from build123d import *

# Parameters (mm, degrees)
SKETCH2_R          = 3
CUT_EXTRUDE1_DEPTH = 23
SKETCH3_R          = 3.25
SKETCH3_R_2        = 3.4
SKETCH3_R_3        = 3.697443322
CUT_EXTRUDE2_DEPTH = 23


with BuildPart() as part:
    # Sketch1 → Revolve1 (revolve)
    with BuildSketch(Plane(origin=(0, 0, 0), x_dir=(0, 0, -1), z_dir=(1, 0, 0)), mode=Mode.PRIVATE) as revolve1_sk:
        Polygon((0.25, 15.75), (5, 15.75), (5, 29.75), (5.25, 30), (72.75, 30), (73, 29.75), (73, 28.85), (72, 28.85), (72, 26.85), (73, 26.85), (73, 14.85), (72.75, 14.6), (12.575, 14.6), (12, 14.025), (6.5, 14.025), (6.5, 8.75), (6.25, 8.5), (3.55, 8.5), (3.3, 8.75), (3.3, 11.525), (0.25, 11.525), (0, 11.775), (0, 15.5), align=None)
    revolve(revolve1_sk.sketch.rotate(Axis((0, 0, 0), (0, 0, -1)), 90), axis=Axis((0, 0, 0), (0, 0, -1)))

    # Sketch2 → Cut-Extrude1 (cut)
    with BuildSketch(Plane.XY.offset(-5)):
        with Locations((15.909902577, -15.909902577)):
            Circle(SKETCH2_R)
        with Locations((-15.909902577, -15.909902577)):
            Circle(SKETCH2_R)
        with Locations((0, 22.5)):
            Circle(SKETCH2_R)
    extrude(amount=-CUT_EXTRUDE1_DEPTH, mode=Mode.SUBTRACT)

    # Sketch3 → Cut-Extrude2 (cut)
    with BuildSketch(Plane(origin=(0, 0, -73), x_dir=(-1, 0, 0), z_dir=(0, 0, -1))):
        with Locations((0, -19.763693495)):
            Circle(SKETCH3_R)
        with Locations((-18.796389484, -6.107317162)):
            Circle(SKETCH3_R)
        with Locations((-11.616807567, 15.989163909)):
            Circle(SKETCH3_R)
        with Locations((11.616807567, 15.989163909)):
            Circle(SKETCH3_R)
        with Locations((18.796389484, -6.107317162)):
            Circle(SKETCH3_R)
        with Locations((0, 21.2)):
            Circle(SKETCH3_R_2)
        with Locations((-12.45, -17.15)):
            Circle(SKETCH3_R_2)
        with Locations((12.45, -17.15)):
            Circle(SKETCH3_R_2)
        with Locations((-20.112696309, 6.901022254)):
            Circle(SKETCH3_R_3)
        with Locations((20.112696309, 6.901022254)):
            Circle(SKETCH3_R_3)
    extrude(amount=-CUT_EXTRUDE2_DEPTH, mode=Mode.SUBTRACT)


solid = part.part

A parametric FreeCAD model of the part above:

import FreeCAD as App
import Part
import Sketcher

V = App.Vector

doc = App.newDocument("Part")
body = doc.addObject("PartDesign::Body", "Body")

# Sketch on YZ plane
sketch1 = doc.addObject("Sketcher::SketchObject", "Sketch")
body.addObject(sketch1)
sketch1.AttachmentSupport = (doc.YZ_Plane, [""])
sketch1.MapMode = "FlatFace"
sketch1.addGeometry(Part.LineSegment(V(15.75, -5, 0), V(15.75, -0.25, 0)), False)
sketch1.addGeometry(Part.LineSegment(V(15.75, -0.25, 0), V(15.5, 0, 0)), False)
sketch1.addGeometry(Part.LineSegment(V(15.5, 0, 0), V(11.78, 0, 0)), False)
sketch1.addGeometry(Part.LineSegment(V(11.78, 0, 0), V(11.53, -0.25, 0)), False)
sketch1.addGeometry(Part.LineSegment(V(11.53, -0.25, 0), V(11.53, -3.3, 0)), False)
sketch1.addGeometry(Part.LineSegment(V(11.53, -3.3, 0), V(8.75, -3.3, 0)), False)
sketch1.addGeometry(Part.LineSegment(V(8.75, -3.3, 0), V(8.5, -3.55, 0)), False)
sketch1.addGeometry(Part.LineSegment(V(8.5, -3.55, 0), V(8.5, -6.25, 0)), False)
sketch1.addGeometry(Part.LineSegment(V(8.5, -6.25, 0), V(8.75, -6.5, 0)), False)
sketch1.addGeometry(Part.LineSegment(V(8.75, -6.5, 0), V(14.03, -6.5, 0)), False)
sketch1.addGeometry(Part.LineSegment(V(14.03, -6.5, 0), V(14.03, -12, 0)), False)
sketch1.addGeometry(Part.LineSegment(V(14.03, -12, 0), V(14.6, -12.57, 0)), False)
sketch1.addGeometry(Part.LineSegment(V(14.6, -12.57, 0), V(14.6, -72.75, 0)), False)
sketch1.addGeometry(Part.LineSegment(V(14.6, -72.75, 0), V(14.85, -73, 0)), False)
sketch1.addGeometry(Part.LineSegment(V(14.85, -73, 0), V(26.85, -73, 0)), False)
sketch1.addGeometry(Part.LineSegment(V(26.85, -73, 0), V(26.85, -72, 0)), False)
sketch1.addGeometry(Part.LineSegment(V(26.85, -72, 0), V(28.85, -72, 0)), False)
sketch1.addGeometry(Part.LineSegment(V(28.85, -72, 0), V(28.85, -73, 0)), False)
sketch1.addGeometry(Part.LineSegment(V(28.85, -73, 0), V(29.75, -73, 0)), False)
sketch1.addGeometry(Part.LineSegment(V(29.75, -73, 0), V(30, -72.75, 0)), False)
sketch1.addGeometry(Part.LineSegment(V(30, -72.75, 0), V(30, -5.25, 0)), False)
sketch1.addGeometry(Part.LineSegment(V(30, -5.25, 0), V(29.75, -5, 0)), False)
sketch1.addGeometry(Part.LineSegment(V(29.75, -5, 0), V(15.75, -5, 0)), False)
sketch1.addConstraint(Sketcher.Constraint("Coincident", 0, 2, 1, 1))
sketch1.addConstraint(Sketcher.Constraint("Coincident", 1, 2, 2, 1))
sketch1.addConstraint(Sketcher.Constraint("Coincident", 2, 2, 3, 1))
sketch1.addConstraint(Sketcher.Constraint("Coincident", 3, 2, 4, 1))
sketch1.addConstraint(Sketcher.Constraint("Coincident", 4, 2, 5, 1))
sketch1.addConstraint(Sketcher.Constraint("Coincident", 5, 2, 6, 1))
sketch1.addConstraint(Sketcher.Constraint("Coincident", 6, 2, 7, 1))
sketch1.addConstraint(Sketcher.Constraint("Coincident", 7, 2, 8, 1))
sketch1.addConstraint(Sketcher.Constraint("Coincident", 8, 2, 9, 1))
sketch1.addConstraint(Sketcher.Constraint("Coincident", 9, 2, 10, 1))
sketch1.addConstraint(Sketcher.Constraint("Coincident", 10, 2, 11, 1))
sketch1.addConstraint(Sketcher.Constraint("Coincident", 11, 2, 12, 1))
sketch1.addConstraint(Sketcher.Constraint("Coincident", 12, 2, 13, 1))
sketch1.addConstraint(Sketcher.Constraint("Coincident", 13, 2, 14, 1))
sketch1.addConstraint(Sketcher.Constraint("Coincident", 14, 2, 15, 1))
sketch1.addConstraint(Sketcher.Constraint("Coincident", 15, 2, 16, 1))
sketch1.addConstraint(Sketcher.Constraint("Coincident", 16, 2, 17, 1))
sketch1.addConstraint(Sketcher.Constraint("Coincident", 17, 2, 18, 1))
sketch1.addConstraint(Sketcher.Constraint("Coincident", 18, 2, 19, 1))
sketch1.addConstraint(Sketcher.Constraint("Coincident", 19, 2, 20, 1))
sketch1.addConstraint(Sketcher.Constraint("Coincident", 20, 2, 21, 1))
sketch1.addConstraint(Sketcher.Constraint("Coincident", 21, 2, 22, 1))
sketch1.addConstraint(Sketcher.Constraint("Coincident", 22, 2, 0, 1))
sketch1.addConstraint(Sketcher.Constraint("Vertical", 0))
sketch1.addConstraint(Sketcher.Constraint("Horizontal", 2))
sketch1.addConstraint(Sketcher.Constraint("Vertical", 4))
sketch1.addConstraint(Sketcher.Constraint("Horizontal", 5))
sketch1.addConstraint(Sketcher.Constraint("Vertical", 7))
sketch1.addConstraint(Sketcher.Constraint("Horizontal", 9))
sketch1.addConstraint(Sketcher.Constraint("Vertical", 10))
sketch1.addConstraint(Sketcher.Constraint("Vertical", 12))
sketch1.addConstraint(Sketcher.Constraint("Horizontal", 14))
sketch1.addConstraint(Sketcher.Constraint("Vertical", 15))
sketch1.addConstraint(Sketcher.Constraint("Horizontal", 16))
sketch1.addConstraint(Sketcher.Constraint("Vertical", 17))
sketch1.addConstraint(Sketcher.Constraint("Horizontal", 18))
sketch1.addConstraint(Sketcher.Constraint("Vertical", 20))
sketch1.addConstraint(Sketcher.Constraint("Horizontal", 22))
sketch1.addConstraint(Sketcher.Constraint("PointOnObject", 1, 2, -1))
sketch1.addConstraint(Sketcher.Constraint("Perpendicular", 1, 3))
sketch1.addConstraint(Sketcher.Constraint("Parallel", 3, 6))
sketch1.addConstraint(Sketcher.Constraint("Perpendicular", 6, 8))
sketch1.addConstraint(Sketcher.Constraint("Parallel", 8, 11))
sketch1.addConstraint(Sketcher.Constraint("Parallel", 11, 13))
sketch1.addConstraint(Sketcher.Constraint("Perpendicular", 13, 19))
sketch1.addConstraint(Sketcher.Constraint("Perpendicular", 19, 21))
sketch1.addConstraint(Sketcher.Constraint("Horizontal", 0, 2, 3, 2))
sketch1.addConstraint(Sketcher.Constraint("Horizontal", 14, 2, 17, 2))
sketch1.addConstraint(Sketcher.Constraint("Horizontal", 12, 2, 19, 2))
sketch1.addConstraint(Sketcher.Constraint("Vertical", 5, 2, 8, 2))
sketch1.addConstraint(Sketcher.Constraint("Vertical", 18, 2, 21, 2))
sketch1.addConstraint(Sketcher.Constraint("Equal", 1, 3))
sketch1.addConstraint(Sketcher.Constraint("Equal", 3, 6))
sketch1.addConstraint(Sketcher.Constraint("Equal", 8, 13))
sketch1.addConstraint(Sketcher.Constraint("DistanceX", 14, 1, 14, 2, 12.0))
sketch1.addConstraint(Sketcher.Constraint("DistanceX", 16, 1, 16, 2, 2.0))
sketch1.addConstraint(Sketcher.Constraint("DistanceX", 22, 2, 22, 1, 14.0))
sketch1.addConstraint(Sketcher.Constraint("DistanceY", 15, 1, 15, 2, 1.0))
sketch1.addConstraint(Sketcher.Constraint("DistanceX", 18, 1, 18, 2, 0.9))
sketch1.addConstraint(Sketcher.Constraint("DistanceY", 7, 2, 7, 1, 2.7))
sketch1.addConstraint(Sketcher.Constraint("DistanceY", 10, 2, 10, 1, 5.5))
sketch1.addConstraint(Sketcher.Constraint("DistanceY", 20, 1, 20, 2, 67.5))
sketch1.addConstraint(Sketcher.Constraint("DistanceY", 10, 2, -1, 1, 12.0))
sketch1.addConstraint(Sketcher.Constraint("DistanceY", 13, 2, -1, 1, 73.0))
sketch1.addConstraint(Sketcher.Constraint("DistanceX", -1, 1, 19, 2, 30.0))
sketch1.addConstraint(Sketcher.Constraint("DistanceY", 21, 2, -1, 1, 5.0))
sketch1.addConstraint(Sketcher.Constraint("DistanceX", 5, 2, 0, 2, 7.0))
sketch1.addConstraint(Sketcher.Constraint("DistanceX", 4, 2, 9, 2, 2.5))
sketch1.addConstraint(Sketcher.Constraint("DistanceX", 2, 2, 2, 1, 3.725))
revolution = doc.addObject("PartDesign::Revolution", "Revolution")
body.addObject(revolution)
revolution.Profile = sketch1
revolution.ReferenceAxis = (sketch1, ["V_Axis"])
revolution.Angle = 360

# Sketch on XY plane
sketch2 = doc.addObject("Sketcher::SketchObject", "Sketch001")
body.addObject(sketch2)
sketch2.AttachmentSupport = (doc.XY_Plane, [""])
sketch2.MapMode = "FlatFace"
sketch2.AttachmentOffset = App.Placement(V(0, 0, -5), App.Rotation())
sketch2.addGeometry(Part.Circle(V(15.9, -15.9, 0), V(0, 0, 1), 3), False)
sketch2.addGeometry(Part.Circle(V(-15.9, -15.9, 0), V(0, 0, 1), 3), False)
sketch2.addGeometry(Part.Circle(V(0, 22.5, 0), V(0, 0, 1), 3), False)
sketch2.addConstraint(Sketcher.Constraint("Equal", 0, 1))
sketch2.addConstraint(Sketcher.Constraint("Equal", 1, 2))
sketch2.addConstraint(Sketcher.Constraint("Symmetric", 0, 3, 1, 3, -2))
sketch2.addConstraint(Sketcher.Constraint("PointOnObject", 2, 3, -2))
sketch2.addConstraint(Sketcher.Constraint("Diameter", 0, 6.0))
sketch2.addConstraint(Sketcher.Constraint("DistanceY", -1, 1, 2, 3, 22.5))
sketch2.addConstraint(Sketcher.Constraint("DistanceX", -1, 1, 0, 3, 15.909903))
sketch2.addConstraint(Sketcher.Constraint("DistanceY", 0, 3, -1, 1, 15.909903))
pocket1 = doc.addObject("PartDesign::Pocket", "Pocket")
body.addObject(pocket1)
pocket1.Profile = sketch2
pocket1.Length = 23

# Sketch on XY plane
sketch3 = doc.addObject("Sketcher::SketchObject", "Sketch002")
body.addObject(sketch3)
sketch3.AttachmentSupport = (doc.XY_Plane, [""])
sketch3.MapMode = "FlatFace"
sketch3.AttachmentOffset = App.Placement(V(0, 0, -73), App.Rotation())
sketch3.addGeometry(Part.Circle(V(0, -19.8, 0), V(0, 0, 1), 3.2), False)
sketch3.addGeometry(Part.Circle(V(18.8, -6.1, 0), V(0, 0, 1), 3.2), False)
sketch3.addGeometry(Part.Circle(V(11.6, 16, 0), V(0, 0, 1), 3.2), False)
sketch3.addGeometry(Part.Circle(V(-11.6, 16, 0), V(0, 0, 1), 3.2), False)
sketch3.addGeometry(Part.Circle(V(-18.8, -6.1, 0), V(0, 0, 1), 3.2), False)
sketch3.addGeometry(Part.Circle(V(0, 21.2, 0), V(0, 0, 1), 3.4), False)
sketch3.addGeometry(Part.Circle(V(12.4, -17.1, 0), V(0, 0, 1), 3.4), False)
sketch3.addGeometry(Part.Circle(V(-12.4, -17.1, 0), V(0, 0, 1), 3.4), False)
sketch3.addGeometry(Part.Circle(V(20.1, 6.9, 0), V(0, 0, 1), 3.7), False)
sketch3.addGeometry(Part.Circle(V(-20.1, 6.9, 0), V(0, 0, 1), 3.7), False)
sketch3.addConstraint(Sketcher.Constraint("Equal", 0, 1))
sketch3.addConstraint(Sketcher.Constraint("Equal", 1, 2))
sketch3.addConstraint(Sketcher.Constraint("Equal", 2, 3))
sketch3.addConstraint(Sketcher.Constraint("Equal", 3, 4))
sketch3.addConstraint(Sketcher.Constraint("Equal", 5, 6))
sketch3.addConstraint(Sketcher.Constraint("Equal", 6, 7))
sketch3.addConstraint(Sketcher.Constraint("Equal", 8, 9))
sketch3.addConstraint(Sketcher.Constraint("Symmetric", 2, 3, 3, 3, -2))
sketch3.addConstraint(Sketcher.Constraint("Symmetric", 1, 3, 4, 3, -2))
sketch3.addConstraint(Sketcher.Constraint("Symmetric", 6, 3, 7, 3, -2))
sketch3.addConstraint(Sketcher.Constraint("Symmetric", 8, 3, 9, 3, -2))
sketch3.addConstraint(Sketcher.Constraint("PointOnObject", 0, 3, -2))
sketch3.addConstraint(Sketcher.Constraint("PointOnObject", 5, 3, -2))
sketch3.addConstraint(Sketcher.Constraint("Diameter", 0, 6.5))
sketch3.addConstraint(Sketcher.Constraint("Diameter", 5, 6.8))
sketch3.addConstraint(Sketcher.Constraint("DistanceY", -1, 1, 5, 3, 21.2))
sketch3.addConstraint(Sketcher.Constraint("DistanceX", 7, 3, 6, 3, 24.9))
sketch3.addConstraint(Sketcher.Constraint("DistanceY", 6, 3, -1, 1, 17.15))
sketch3.addConstraint(Sketcher.Constraint("Diameter", 8, 7.394887))
sketch3.addConstraint(Sketcher.Constraint("DistanceX", -1, 1, 1, 3, 18.796389))
sketch3.addConstraint(Sketcher.Constraint("DistanceX", 2, 3, 1, 3, 7.179582))
sketch3.addConstraint(Sketcher.Constraint("DistanceY", 1, 3, 2, 3, 22.096481))
sketch3.addConstraint(Sketcher.Constraint("DistanceX", 2, 3, 8, 3, 8.495889))
sketch3.addConstraint(Sketcher.Constraint("DistanceY", 8, 3, 2, 3, 9.088142))
sketch3.addConstraint(Sketcher.Constraint("DistanceY", 0, 3, -1, 1, 19.763693))
sketch3.addConstraint(Sketcher.Constraint("DistanceY", 1, 3, -1, 1, 6.107317))
pocket2 = doc.addObject("PartDesign::Pocket", "Pocket001")
body.addObject(pocket2)
pocket2.Profile = sketch3
pocket2.Length = 23
pocket2.Reversed = True

doc.recompute()
